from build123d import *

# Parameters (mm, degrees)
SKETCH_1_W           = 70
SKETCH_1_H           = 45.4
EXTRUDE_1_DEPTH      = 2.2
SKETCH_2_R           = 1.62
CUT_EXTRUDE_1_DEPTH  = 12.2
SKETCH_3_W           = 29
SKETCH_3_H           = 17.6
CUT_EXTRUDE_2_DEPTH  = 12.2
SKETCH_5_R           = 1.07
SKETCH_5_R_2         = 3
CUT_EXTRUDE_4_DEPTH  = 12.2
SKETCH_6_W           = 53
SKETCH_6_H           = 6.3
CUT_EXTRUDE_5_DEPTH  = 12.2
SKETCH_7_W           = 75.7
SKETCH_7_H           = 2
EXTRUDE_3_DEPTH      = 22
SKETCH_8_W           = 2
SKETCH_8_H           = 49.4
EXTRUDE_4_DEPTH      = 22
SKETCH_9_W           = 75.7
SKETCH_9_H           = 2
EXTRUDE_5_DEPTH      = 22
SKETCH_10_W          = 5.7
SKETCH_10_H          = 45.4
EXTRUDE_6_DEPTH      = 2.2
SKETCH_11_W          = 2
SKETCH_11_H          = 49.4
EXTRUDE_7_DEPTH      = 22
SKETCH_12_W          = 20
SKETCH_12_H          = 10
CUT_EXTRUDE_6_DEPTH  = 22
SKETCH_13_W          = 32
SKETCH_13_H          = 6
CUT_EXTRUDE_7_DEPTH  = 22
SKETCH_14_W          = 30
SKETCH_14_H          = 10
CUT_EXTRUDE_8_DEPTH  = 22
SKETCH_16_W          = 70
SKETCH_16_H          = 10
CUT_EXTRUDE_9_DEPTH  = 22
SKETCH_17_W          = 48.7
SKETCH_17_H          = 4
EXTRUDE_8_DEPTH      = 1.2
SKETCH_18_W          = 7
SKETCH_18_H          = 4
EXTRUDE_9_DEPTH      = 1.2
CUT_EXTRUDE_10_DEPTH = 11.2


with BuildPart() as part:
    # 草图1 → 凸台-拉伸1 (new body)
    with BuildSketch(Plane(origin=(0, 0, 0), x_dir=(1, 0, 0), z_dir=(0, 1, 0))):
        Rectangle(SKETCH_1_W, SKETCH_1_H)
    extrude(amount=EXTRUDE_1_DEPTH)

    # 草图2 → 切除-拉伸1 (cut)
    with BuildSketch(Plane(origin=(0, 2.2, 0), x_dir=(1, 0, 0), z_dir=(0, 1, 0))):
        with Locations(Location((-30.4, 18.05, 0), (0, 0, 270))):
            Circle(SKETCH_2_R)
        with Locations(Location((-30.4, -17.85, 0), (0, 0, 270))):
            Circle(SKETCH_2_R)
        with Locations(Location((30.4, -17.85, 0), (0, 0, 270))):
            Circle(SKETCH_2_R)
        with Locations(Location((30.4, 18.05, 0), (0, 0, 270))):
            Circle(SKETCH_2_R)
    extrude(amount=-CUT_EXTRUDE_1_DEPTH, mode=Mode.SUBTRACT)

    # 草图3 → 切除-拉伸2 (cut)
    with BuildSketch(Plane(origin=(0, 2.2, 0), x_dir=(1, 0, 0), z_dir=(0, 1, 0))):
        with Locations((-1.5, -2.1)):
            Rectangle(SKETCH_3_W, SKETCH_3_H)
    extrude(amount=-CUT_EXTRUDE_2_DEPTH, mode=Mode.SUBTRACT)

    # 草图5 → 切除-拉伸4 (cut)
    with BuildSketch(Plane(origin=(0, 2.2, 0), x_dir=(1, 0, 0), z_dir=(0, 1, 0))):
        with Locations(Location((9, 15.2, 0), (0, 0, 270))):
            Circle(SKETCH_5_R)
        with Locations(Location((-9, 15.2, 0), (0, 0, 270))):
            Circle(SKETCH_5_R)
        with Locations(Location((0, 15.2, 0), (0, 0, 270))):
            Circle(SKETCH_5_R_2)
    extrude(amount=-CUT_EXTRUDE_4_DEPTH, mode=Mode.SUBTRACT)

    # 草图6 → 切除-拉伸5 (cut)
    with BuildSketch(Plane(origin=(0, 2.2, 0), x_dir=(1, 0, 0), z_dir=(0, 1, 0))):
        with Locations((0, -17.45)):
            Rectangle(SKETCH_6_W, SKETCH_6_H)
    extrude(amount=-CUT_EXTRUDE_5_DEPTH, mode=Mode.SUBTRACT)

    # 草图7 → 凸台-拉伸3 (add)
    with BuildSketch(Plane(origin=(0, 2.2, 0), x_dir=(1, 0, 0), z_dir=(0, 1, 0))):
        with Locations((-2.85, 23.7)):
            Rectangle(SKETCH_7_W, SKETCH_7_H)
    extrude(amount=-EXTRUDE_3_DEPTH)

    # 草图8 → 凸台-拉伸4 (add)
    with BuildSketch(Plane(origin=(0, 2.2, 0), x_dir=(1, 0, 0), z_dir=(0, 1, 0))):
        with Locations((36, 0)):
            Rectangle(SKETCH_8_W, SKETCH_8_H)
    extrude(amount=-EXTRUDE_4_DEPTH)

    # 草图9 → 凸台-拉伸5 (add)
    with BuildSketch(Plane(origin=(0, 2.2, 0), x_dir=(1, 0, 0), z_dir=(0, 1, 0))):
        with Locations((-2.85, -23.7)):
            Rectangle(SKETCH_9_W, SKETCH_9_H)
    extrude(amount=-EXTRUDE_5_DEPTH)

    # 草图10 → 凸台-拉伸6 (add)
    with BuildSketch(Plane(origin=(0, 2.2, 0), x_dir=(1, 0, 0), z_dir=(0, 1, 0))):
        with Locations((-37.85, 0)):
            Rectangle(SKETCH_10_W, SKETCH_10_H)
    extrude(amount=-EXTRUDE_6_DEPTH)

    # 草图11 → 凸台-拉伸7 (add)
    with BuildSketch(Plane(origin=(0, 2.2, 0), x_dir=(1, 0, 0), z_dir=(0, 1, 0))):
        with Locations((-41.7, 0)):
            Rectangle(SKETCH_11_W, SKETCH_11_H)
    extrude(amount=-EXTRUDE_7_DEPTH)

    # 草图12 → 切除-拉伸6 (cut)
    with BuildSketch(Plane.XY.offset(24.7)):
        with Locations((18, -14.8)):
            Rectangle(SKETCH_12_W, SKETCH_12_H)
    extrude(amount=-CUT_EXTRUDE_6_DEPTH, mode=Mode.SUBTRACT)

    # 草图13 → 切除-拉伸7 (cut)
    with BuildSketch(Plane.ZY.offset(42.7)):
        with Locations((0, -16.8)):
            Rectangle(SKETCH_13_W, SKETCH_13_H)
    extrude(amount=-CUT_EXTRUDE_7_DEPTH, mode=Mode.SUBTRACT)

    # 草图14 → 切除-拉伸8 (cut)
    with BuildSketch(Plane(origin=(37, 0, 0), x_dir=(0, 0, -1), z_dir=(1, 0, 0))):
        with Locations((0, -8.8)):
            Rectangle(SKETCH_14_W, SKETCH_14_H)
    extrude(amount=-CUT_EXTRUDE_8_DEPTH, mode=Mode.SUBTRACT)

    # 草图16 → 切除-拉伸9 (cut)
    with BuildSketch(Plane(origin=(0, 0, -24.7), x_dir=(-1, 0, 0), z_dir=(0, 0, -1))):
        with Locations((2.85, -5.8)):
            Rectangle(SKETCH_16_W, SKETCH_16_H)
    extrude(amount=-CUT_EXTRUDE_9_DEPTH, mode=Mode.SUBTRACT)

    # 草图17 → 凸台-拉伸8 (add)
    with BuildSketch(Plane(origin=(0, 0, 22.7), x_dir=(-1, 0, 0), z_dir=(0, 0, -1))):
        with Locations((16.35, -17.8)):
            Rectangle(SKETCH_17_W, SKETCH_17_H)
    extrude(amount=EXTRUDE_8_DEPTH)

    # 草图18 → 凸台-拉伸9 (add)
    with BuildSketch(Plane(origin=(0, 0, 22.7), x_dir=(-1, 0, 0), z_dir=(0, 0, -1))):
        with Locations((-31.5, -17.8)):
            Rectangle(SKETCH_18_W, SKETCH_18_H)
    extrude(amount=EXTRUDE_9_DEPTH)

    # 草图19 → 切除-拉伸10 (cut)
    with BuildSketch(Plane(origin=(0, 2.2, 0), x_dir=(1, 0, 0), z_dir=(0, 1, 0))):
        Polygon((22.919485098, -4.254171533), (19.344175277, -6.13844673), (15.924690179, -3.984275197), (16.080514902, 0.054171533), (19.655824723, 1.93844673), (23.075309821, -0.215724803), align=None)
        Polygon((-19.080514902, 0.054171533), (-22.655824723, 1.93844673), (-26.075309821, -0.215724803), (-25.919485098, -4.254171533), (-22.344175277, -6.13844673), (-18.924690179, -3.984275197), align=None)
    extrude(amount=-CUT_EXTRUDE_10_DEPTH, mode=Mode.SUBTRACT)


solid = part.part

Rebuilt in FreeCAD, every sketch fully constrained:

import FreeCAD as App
import Part
import Sketcher

V = App.Vector


def add_polygon(sketch, points):
    """Adds a closed chain of lines whose ends are joined by coincident constraints."""
    first, n = sketch.GeometryCount, len(points)
    for a, b in zip(points, points[1:] + points[:1]):
        sketch.addGeometry(Part.LineSegment(App.Vector(*a, 0), App.Vector(*b, 0)), False)
    for i in range(n):
        sketch.addConstraint(Sketcher.Constraint("Coincident", first + i, 2, first + (i + 1) % n, 1))

doc = App.newDocument("Part")
body = doc.addObject("PartDesign::Body", "Body")

# Sketch on XZ plane
sketch1 = body.newObject("Sketcher::SketchObject", "Sketch")
sketch1.AttachmentSupport = (doc.getObject("XZ_Plane"), [""])
sketch1.MapMode = "FlatFace"
add_polygon(sketch1, [(-35, -23), (-35, 23), (35, 23), (35, -23)])  # lines 0-3
sketch1.addConstraint([
    Sketcher.Constraint("Vertical", 0),
    Sketcher.Constraint("Horizontal", 1),
    Sketcher.Constraint("Vertical", 2),
    Sketcher.Constraint("Horizontal", 3),
    Sketcher.Constraint("Symmetric", 0, 2, 2, 2, -1, 1),
    Sketcher.Constraint("DistanceX", 1, 1, 1, 2, 70.0),
    Sketcher.Constraint("DistanceY", 0, 1, 0, 2, 45.4),
])
pad1 = body.newObject("PartDesign::Pad", "Pad")
pad1.Profile = sketch1
pad1.Length = 2.2
pad1.Reversed = True

# Sketch on XZ plane
sketch2 = body.newObject("Sketcher::SketchObject", "Sketch001")
sketch2.AttachmentSupport = (doc.getObject("XZ_Plane"), [""])
sketch2.MapMode = "FlatFace"
sketch2.AttachmentOffset = App.Placement(V(0, 0, -2.2), App.Rotation())
sketch2.addGeometry([
    Part.Circle(V(-30.4, -18.1, 0), V(0, 0, 1), 1.6),
    Part.Circle(V(-30.4, 17.9, 0), V(0, 0, 1), 1.6),
    Part.Circle(V(30.4, 17.9, 0), V(0, 0, 1), 1.6),
    Part.Circle(V(30.4, -18.1, 0), V(0, 0, 1), 1.6),
], False)
sketch2.addConstraint([
    Sketcher.Constraint("Equal", 0, 1),
    Sketcher.Constraint("Equal", 1, 2),
    Sketcher.Constraint("Equal", 2, 3),
    Sketcher.Constraint("Symmetric", 1, 3, 2, 3, -2),
    Sketcher.Constraint("Symmetric", 0, 3, 3, 3, -2),
    Sketcher.Constraint("Vertical", 0, 3, 1, 3),
    Sketcher.Constraint("Diameter", 0, 3.24),
    Sketcher.Constraint("DistanceX", 0, 3, -1, 1, 30.4),
    Sketcher.Constraint("DistanceY", 0, 3, 1, 3, 35.9),
    Sketcher.Constraint("DistanceY", 0, 3, -1, 1, 18.05),
])
pocket1 = body.newObject("PartDesign::Pocket", "Pocket")
pocket1.Profile = sketch2
pocket1.Length = 12.2
pocket1.Reversed = True

# Sketch on XZ plane
sketch3 = body.newObject("Sketcher::SketchObject", "Sketch002")
sketch3.AttachmentSupport = (doc.getObject("XZ_Plane"), [""])
sketch3.MapMode = "FlatFace"
sketch3.AttachmentOffset = App.Placement(V(0, 0, -2.2), App.Rotation())
add_polygon(sketch3, [(-16, -7), (-16, 11), (13, 11), (13, -7)])  # lines 0-3
sketch3.addConstraint([
    Sketcher.Constraint("Vertical", 0),
    Sketcher.Constraint("Horizontal", 1),
    Sketcher.Constraint("Vertical", 2),
    Sketcher.Constraint("Horizontal", 3),
    Sketcher.Constraint("DistanceX", 1, 1, 1, 2, 29.0),
    Sketcher.Constraint("DistanceY", 0, 1, 0, 2, 17.6),
    Sketcher.Constraint("DistanceX", 0, 2, -1, 1, 16.0),
    Sketcher.Constraint("DistanceY", -1, 1, 0, 2, 10.9),
])
pocket2 = body.newObject("PartDesign::Pocket", "Pocket001")
pocket2.Profile = sketch3
pocket2.Length = 12.2
pocket2.Reversed = True

# Sketch on XZ plane
sketch4 = body.newObject("Sketcher::SketchObject", "Sketch003")
sketch4.AttachmentSupport = (doc.getObject("XZ_Plane"), [""])
sketch4.MapMode = "FlatFace"
sketch4.AttachmentOffset = App.Placement(V(0, 0, -2.2), App.Rotation())
sketch4.addGeometry([
    Part.Circle(V(9, -15.2, 0), V(0, 0, 1), 1.1),
    Part.Circle(V(-9, -15.2, 0), V(0, 0, 1), 1.1),
    Part.Circle(V(0, -15.2, 0), V(0, 0, 1), 3),
], False)
sketch4.addConstraint([
    Sketcher.Constraint("Equal", 0, 1),
    Sketcher.Constraint("Symmetric", 0, 3, 1, 3, -2),
    Sketcher.Constraint("PointOnObject", 2, 3, -2),
    Sketcher.Constraint("Horizontal", 1, 3, 2, 3),
    Sketcher.Constraint("Diameter", 2, 6.0),
    Sketcher.Constraint("Diameter", 0, 2.14),
    Sketcher.Constraint("DistanceX", -1, 1, 0, 3, 9.0),
    Sketcher.Constraint("DistanceY", 0, 3, -1, 1, 15.2),
])
pocket3 = body.newObject("PartDesign::Pocket", "Pocket002")
pocket3.Profile = sketch4
pocket3.Length = 12.2
pocket3.Reversed = True

# Sketch on XZ plane
sketch5 = body.newObject("Sketcher::SketchObject", "Sketch004")
sketch5.AttachmentSupport = (doc.getObject("XZ_Plane"), [""])
sketch5.MapMode = "FlatFace"
sketch5.AttachmentOffset = App.Placement(V(0, 0, -2.2), App.Rotation())
add_polygon(sketch5, [(-26, 14), (-26, 21), (26, 21), (26, 14)])  # lines 0-3
sketch5.addConstraint([
    Sketcher.Constraint("Vertical", 0),
    Sketcher.Constraint("Horizontal", 1),
    Sketcher.Constraint("Vertical", 2),
    Sketcher.Constraint("Horizontal", 3),
    Sketcher.Constraint("DistanceX", 1, 1, 1, 2, 53.0),
    Sketcher.Constraint("DistanceY", 0, 1, 0, 2, 6.3),
    Sketcher.Constraint("DistanceX", 0, 2, -1, 1, 26.5),
    Sketcher.Constraint("DistanceY", -1, 1, 0, 2, 20.6),
])
pocket4 = body.newObject("PartDesign::Pocket", "Pocket003")
pocket4.Profile = sketch5
pocket4.Length = 12.2
pocket4.Reversed = True

# Sketch on XZ plane
sketch6 = body.newObject("Sketcher::SketchObject", "Sketch005")
sketch6.AttachmentSupport = (doc.getObject("XZ_Plane"), [""])
sketch6.MapMode = "FlatFace"
sketch6.AttachmentOffset = App.Placement(V(0, 0, -2.2), App.Rotation())
add_polygon(sketch6, [(-40.7, -24.7), (-40.7, -22.7), (35, -22.7), (35, -24.7)])  # lines 0-3
sketch6.addConstraint([
    Sketcher.Constraint("Vertical", 0),
    Sketcher.Constraint("Horizontal", 1),
    Sketcher.Constraint("Vertical", 2),
    Sketcher.Constraint("Horizontal", 3),
    Sketcher.Constraint("DistanceY", 0, 1, 0, 2, 2.0),
    Sketcher.Constraint("DistanceX", 1, 1, 1, 2, 75.7),
    Sketcher.Constraint("DistanceX", -1, 1, 1, 2, 35.0),
    Sketcher.Constraint("DistanceY", 0, 2, -1, 1, 22.7),
])
pad2 = body.newObject("PartDesign::Pad", "Pad001")
pad2.Profile = sketch6
pad2.Length = 22

# Sketch on XZ plane
sketch7 = body.newObject("Sketcher::SketchObject", "Sketch006")
sketch7.AttachmentSupport = (doc.getObject("XZ_Plane"), [""])
sketch7.MapMode = "FlatFace"
sketch7.AttachmentOffset = App.Placement(V(0, 0, -2.2), App.Rotation())
add_polygon(sketch7, [(35, -24.7), (35, 24.7), (37, 24.7), (37, -24.7)])  # lines 0-3
sketch7.addConstraint([
    Sketcher.Constraint("Vertical", 0),
    Sketcher.Constraint("Horizontal", 1),
    Sketcher.Constraint("Vertical", 2),
    Sketcher.Constraint("Horizontal", 3),
    Sketcher.Constraint("DistanceX", 1, 1, 1, 2, 2.0),
    Sketcher.Constraint("DistanceY", 0, 1, 0, 2, 49.4),
    Sketcher.Constraint("DistanceX", -1, 1, 0, 2, 35.0),
    Sketcher.Constraint("DistanceY", -1, 1, 0, 2, 24.7),
])
pad3 = body.newObject("PartDesign::Pad", "Pad002")
pad3.Profile = sketch7
pad3.Length = 22

# Sketch on XZ plane
sketch8 = body.newObject("Sketcher::SketchObject", "Sketch007")
sketch8.AttachmentSupport = (doc.getObject("XZ_Plane"), [""])
sketch8.MapMode = "FlatFace"
sketch8.AttachmentOffset = App.Placement(V(0, 0, -2.2), App.Rotation())
add_polygon(sketch8, [(-40.7, 22.7), (-40.7, 24.7), (35, 24.7), (35, 22.7)])  # lines 0-3
sketch8.addConstraint([
    Sketcher.Constraint("Vertical", 0),
    Sketcher.Constraint("Horizontal", 1),
    Sketcher.Constraint("Vertical", 2),
    Sketcher.Constraint("Horizontal", 3),
    Sketcher.Constraint("DistanceY", 0, 1, 0, 2, 2.0),
    Sketcher.Constraint("DistanceX", 1, 1, 1, 2, 75.7),
    Sketcher.Constraint("DistanceX", -1, 1, 1, 2, 35.0),
    Sketcher.Constraint("DistanceY", -1, 1, 0, 2, 24.7),
])
pad4 = body.newObject("PartDesign::Pad", "Pad003")
pad4.Profile = sketch8
pad4.Length = 22

# Sketch on XZ plane
sketch9 = body.newObject("Sketcher::SketchObject", "Sketch008")
sketch9.AttachmentSupport = (doc.getObject("XZ_Plane"), [""])
sketch9.MapMode = "FlatFace"
sketch9.AttachmentOffset = App.Placement(V(0, 0, -2.2), App.Rotation())
add_polygon(sketch9, [(-41, -23), (-41, 23), (-35, 23), (-35, -23)])  # lines 0-3
sketch9.addConstraint([
    Sketcher.Constraint("Vertical", 0),
    Sketcher.Constraint("Horizontal", 1),
    Sketcher.Constraint("Vertical", 2),
    Sketcher.Constraint("Horizontal", 3),
    Sketcher.Constraint("DistanceX", 1, 1, 1, 2, 5.7),
    Sketcher.Constraint("DistanceY", 0, 1, 0, 2, 45.4),
    Sketcher.Constraint("DistanceX", 1, 2, -1, 1, 35.0),
    Sketcher.Constraint("DistanceY", -1, 1, 0, 2, 22.7),
])
pad5 = body.newObject("PartDesign::Pad", "Pad004")
pad5.Profile = sketch9
pad5.Length = 2.2

# Sketch on XZ plane
sketch10 = body.newObject("Sketcher::SketchObject", "Sketch009")
sketch10.AttachmentSupport = (doc.getObject("XZ_Plane"), [""])
sketch10.MapMode = "FlatFace"
sketch10.AttachmentOffset = App.Placement(V(0, 0, -2.2), App.Rotation())
add_polygon(sketch10, [(-42.7, -24.7), (-42.7, 24.7), (-40.7, 24.7), (-40.7, -24.7)])  # lines 0-3
sketch10.addConstraint([
    Sketcher.Constraint("Vertical", 0),
    Sketcher.Constraint("Horizontal", 1),
    Sketcher.Constraint("Vertical", 2),
    Sketcher.Constraint("Horizontal", 3),
    Sketcher.Constraint("DistanceX", 1, 1, 1, 2, 2.0),
    Sketcher.Constraint("DistanceY", 0, 1, 0, 2, 49.4),
    Sketcher.Constraint("DistanceX", 0, 2, -1, 1, 42.7),
    Sketcher.Constraint("DistanceY", -1, 1, 0, 2, 24.7),
])
pad6 = body.newObject("PartDesign::Pad", "Pad005")
pad6.Profile = sketch10
pad6.Length = 22

# Sketch on XY plane
sketch11 = body.newObject("Sketcher::SketchObject", "Sketch010")
sketch11.AttachmentSupport = (doc.getObject("XY_Plane"), [""])
sketch11.MapMode = "FlatFace"
sketch11.AttachmentOffset = App.Placement(V(0, 0, 24.7), App.Rotation())
add_polygon(sketch11, [(8, -10), (8, -20), (28, -20), (28, -10)])  # lines 0-3
sketch11.addConstraint([
    Sketcher.Constraint("Vertical", 0),
    Sketcher.Constraint("Horizontal", 1),
    Sketcher.Constraint("Vertical", 2),
    Sketcher.Constraint("Horizontal", 3),
    Sketcher.Constraint("DistanceX", 1, 1, 1, 2, 20.0),
    Sketcher.Constraint("DistanceY", 0, 2, 0, 1, 10.0),
    Sketcher.Constraint("DistanceX", -1, 1, 0, 2, 8.0),
    Sketcher.Constraint("DistanceY", 0, 2, -1, 1, 19.8),
])
pocket5 = body.newObject("PartDesign::Pocket", "Pocket004")
pocket5.Profile = sketch11
pocket5.Length = 22

# Sketch on YZ plane
sketch12 = body.newObject("Sketcher::SketchObject", "Sketch011")
sketch12.AttachmentSupport = (doc.getObject("YZ_Plane"), [""])
sketch12.MapMode = "FlatFace"
sketch12.AttachmentOffset = App.Placement(V(0, 0, -42.7), App.Rotation())
add_polygon(sketch12, [(-14, -16), (-20, -16), (-20, 16), (-14, 16)])  # lines 0-3
sketch12.addConstraint([
    Sketcher.Constraint("Horizontal", 0),
    Sketcher.Constraint("Vertical", 1),
    Sketcher.Constraint("Horizontal", 2),
    Sketcher.Constraint("Vertical", 3),
    Sketcher.Constraint("DistanceX", 0, 2, 0, 1, 6.0),
    Sketcher.Constraint("DistanceY", 1, 1, 1, 2, 32.0),
    Sketcher.Constraint("DistanceY", 0, 2, -1, 1, 16.0),
    Sketcher.Constraint("DistanceX", 0, 2, -1, 1, 19.8),
])
pocket6 = body.newObject("PartDesign::Pocket", "Pocket005")
pocket6.Profile = sketch12
pocket6.Length = 22
pocket6.Reversed = True

# Sketch on YZ plane
sketch13 = body.newObject("Sketcher::SketchObject", "Sketch012")
sketch13.AttachmentSupport = (doc.getObject("YZ_Plane"), [""])
sketch13.MapMode = "FlatFace"
sketch13.AttachmentOffset = App.Placement(V(0, 0, 37), App.Rotation())
add_polygon(sketch13, [(-4, 15), (-14, 15), (-14, -15), (-4, -15)])  # lines 0-3
sketch13.addConstraint([
    Sketcher.Constraint("Horizontal", 0),
    Sketcher.Constraint("Vertical", 1),
    Sketcher.Constraint("Horizontal", 2),
    Sketcher.Constraint("Vertical", 3),
    Sketcher.Constraint("DistanceX", 0, 2, 0, 1, 10.0),
    Sketcher.Constraint("DistanceY", 1, 2, 1, 1, 30.0),
    Sketcher.Constraint("DistanceY", -1, 1, 0, 2, 15.0),
    Sketcher.Constraint("DistanceX", 0, 2, -1, 1, 13.8),
])
pocket7 = body.newObject("PartDesign::Pocket", "Pocket006")
pocket7.Profile = sketch13
pocket7.Length = 22

# Sketch on XY plane
sketch14 = body.newObject("Sketcher::SketchObject", "Sketch013")
sketch14.AttachmentSupport = (doc.getObject("XY_Plane"), [""])
sketch14.MapMode = "FlatFace"
sketch14.AttachmentOffset = App.Placement(V(0, 0, -24.7), App.Rotation())
add_polygon(sketch14, [(32, -1), (32, -11), (-38, -11), (-38, -1)])  # lines 0-3
sketch14.addConstraint([
    Sketcher.Constraint("Vertical", 0),
    Sketcher.Constraint("Horizontal", 1),
    Sketcher.Constraint("Vertical", 2),
    Sketcher.Constraint("Horizontal", 3),
    Sketcher.Constraint("DistanceX", 1, 2, 1, 1, 70.0),
    Sketcher.Constraint("DistanceY", 0, 2, 0, 1, 10.0),
    Sketcher.Constraint("DistanceY", 0, 2, -1, 1, 10.8),
    Sketcher.Constraint("DistanceX", -1, 1, 0, 2, 32.15),
])
pocket8 = body.newObject("PartDesign::Pocket", "Pocket007")
pocket8.Profile = sketch14
pocket8.Length = 22
pocket8.Reversed = True

# Sketch on XY plane
sketch15 = body.newObject("Sketcher::SketchObject", "Sketch014")
sketch15.AttachmentSupport = (doc.getObject("XY_Plane"), [""])
sketch15.MapMode = "FlatFace"
sketch15.AttachmentOffset = App.Placement(V(0, 0, 22.7), App.Rotation())
add_polygon(sketch15, [(8, -15.8), (8, -19.8), (-40.7, -19.8), (-40.7, -15.8)])  # lines 0-3
sketch15.addConstraint([
    Sketcher.Constraint("Vertical", 0),
    Sketcher.Constraint("Horizontal", 1),
    Sketcher.Constraint("Vertical", 2),
    Sketcher.Constraint("Horizontal", 3),
    Sketcher.Constraint("DistanceY", 0, 2, 0, 1, 4.0),
    Sketcher.Constraint("DistanceX", 1, 2, 1, 1, 48.7),
    Sketcher.Constraint("DistanceX", -1, 1, 0, 2, 8.0),
    Sketcher.Constraint("DistanceY", 0, 2, -1, 1, 19.8),
])
pad7 = body.newObject("PartDesign::Pad", "Pad006")
pad7.Profile = sketch15
pad7.Length = 1.2
pad7.Reversed = True

# Sketch on XY plane
sketch16 = body.newObject("Sketcher::SketchObject", "Sketch015")
sketch16.AttachmentSupport = (doc.getObject("XY_Plane"), [""])
sketch16.MapMode = "FlatFace"
sketch16.AttachmentOffset = App.Placement(V(0, 0, 22.7), App.Rotation())
add_polygon(sketch16, [(35, -15.8), (35, -19.8), (28, -19.8), (28, -15.8)])  # lines 0-3
sketch16.addConstraint([
    Sketcher.Constraint("Vertical", 0),
    Sketcher.Constraint("Horizontal", 1),
    Sketcher.Constraint("Vertical", 2),
    Sketcher.Constraint("Horizontal", 3),
    Sketcher.Constraint("DistanceX", 1, 2, 1, 1, 7.0),
    Sketcher.Constraint("DistanceY", 0, 2, 0, 1, 4.0),
    Sketcher.Constraint("DistanceX", -1, 1, 0, 2, 35.0),
    Sketcher.Constraint("DistanceY", 0, 2, -1, 1, 19.8),
])
pad8 = body.newObject("PartDesign::Pad", "Pad007")
pad8.Profile = sketch16
pad8.Length = 1.2
pad8.Reversed = True

# Sketch on XZ plane
sketch17 = body.newObject("Sketcher::SketchObject", "Sketch016")
sketch17.AttachmentSupport = (doc.getObject("XZ_Plane"), [""])
sketch17.MapMode = "FlatFace"
sketch17.AttachmentOffset = App.Placement(V(0, 0, -2.2), App.Rotation())
add_polygon(sketch17, [(19.3, 6.1), (22.9, 4.3), (23.1, 0.2), (19.7, -1.9), (16.1, -0.1), (15.9, 4)])  # lines 0-5
add_polygon(sketch17, [(-19.1, -0.1), (-22.7, -1.9), (-26.1, 0.2), (-25.9, 4.3), (-22.3, 6.1), (-18.9, 4)])  # lines 6-11
sketch17.addConstraint([
    Sketcher.Constraint("Parallel", 0, 3),
    Sketcher.Constraint("Parallel", 1, 4),
    Sketcher.Constraint("Parallel", 2, 5),
    Sketcher.Constraint("Parallel", 6, 9),
    Sketcher.Constraint("Parallel", 7, 10),
    Sketcher.Constraint("Parallel", 8, 11),
    Sketcher.Constraint("Horizontal", 2, 2, 6, 2),
    Sketcher.Constraint("Horizontal", 1, 2, 7, 2),
    Sketcher.Constraint("Horizontal", 0, 2, 8, 2),
    Sketcher.Constraint("Horizontal", 5, 2, 9, 2),
    Sketcher.Constraint("Horizontal", 4, 2, 10, 2),
    Sketcher.Constraint("Equal", 0, 1),
    Sketcher.Constraint("Equal", 1, 2),
    Sketcher.Constraint("Equal", 2, 3),
    Sketcher.Constraint("Equal", 5, 6),
    Sketcher.Constraint("Equal", 6, 7),
    Sketcher.Constraint("Equal", 7, 8),
    Sketcher.Constraint("DistanceX", 6, 2, 5, 2, 42.0),
    Sketcher.Constraint("Distance", 0, 4.041452),
    Sketcher.Constraint("DistanceY", -1, 1, 0, 2, 4.254172),
    Sketcher.Constraint("DistanceX", -1, 1, 1, 2, 23.07531),
    Sketcher.Constraint("DistanceY", 3, 2, -1, 1, 0.054172),
    Sketcher.Constraint("DistanceX", -1, 1, 4, 2, 15.92469),
    Sketcher.Constraint("DistanceY", 2, 2, 1, 2, 2.154172),
])
pocket9 = body.newObject("PartDesign::Pocket", "Pocket008")
pocket9.Profile = sketch17
pocket9.Length = 11.2
pocket9.Reversed = True

doc.recompute()
